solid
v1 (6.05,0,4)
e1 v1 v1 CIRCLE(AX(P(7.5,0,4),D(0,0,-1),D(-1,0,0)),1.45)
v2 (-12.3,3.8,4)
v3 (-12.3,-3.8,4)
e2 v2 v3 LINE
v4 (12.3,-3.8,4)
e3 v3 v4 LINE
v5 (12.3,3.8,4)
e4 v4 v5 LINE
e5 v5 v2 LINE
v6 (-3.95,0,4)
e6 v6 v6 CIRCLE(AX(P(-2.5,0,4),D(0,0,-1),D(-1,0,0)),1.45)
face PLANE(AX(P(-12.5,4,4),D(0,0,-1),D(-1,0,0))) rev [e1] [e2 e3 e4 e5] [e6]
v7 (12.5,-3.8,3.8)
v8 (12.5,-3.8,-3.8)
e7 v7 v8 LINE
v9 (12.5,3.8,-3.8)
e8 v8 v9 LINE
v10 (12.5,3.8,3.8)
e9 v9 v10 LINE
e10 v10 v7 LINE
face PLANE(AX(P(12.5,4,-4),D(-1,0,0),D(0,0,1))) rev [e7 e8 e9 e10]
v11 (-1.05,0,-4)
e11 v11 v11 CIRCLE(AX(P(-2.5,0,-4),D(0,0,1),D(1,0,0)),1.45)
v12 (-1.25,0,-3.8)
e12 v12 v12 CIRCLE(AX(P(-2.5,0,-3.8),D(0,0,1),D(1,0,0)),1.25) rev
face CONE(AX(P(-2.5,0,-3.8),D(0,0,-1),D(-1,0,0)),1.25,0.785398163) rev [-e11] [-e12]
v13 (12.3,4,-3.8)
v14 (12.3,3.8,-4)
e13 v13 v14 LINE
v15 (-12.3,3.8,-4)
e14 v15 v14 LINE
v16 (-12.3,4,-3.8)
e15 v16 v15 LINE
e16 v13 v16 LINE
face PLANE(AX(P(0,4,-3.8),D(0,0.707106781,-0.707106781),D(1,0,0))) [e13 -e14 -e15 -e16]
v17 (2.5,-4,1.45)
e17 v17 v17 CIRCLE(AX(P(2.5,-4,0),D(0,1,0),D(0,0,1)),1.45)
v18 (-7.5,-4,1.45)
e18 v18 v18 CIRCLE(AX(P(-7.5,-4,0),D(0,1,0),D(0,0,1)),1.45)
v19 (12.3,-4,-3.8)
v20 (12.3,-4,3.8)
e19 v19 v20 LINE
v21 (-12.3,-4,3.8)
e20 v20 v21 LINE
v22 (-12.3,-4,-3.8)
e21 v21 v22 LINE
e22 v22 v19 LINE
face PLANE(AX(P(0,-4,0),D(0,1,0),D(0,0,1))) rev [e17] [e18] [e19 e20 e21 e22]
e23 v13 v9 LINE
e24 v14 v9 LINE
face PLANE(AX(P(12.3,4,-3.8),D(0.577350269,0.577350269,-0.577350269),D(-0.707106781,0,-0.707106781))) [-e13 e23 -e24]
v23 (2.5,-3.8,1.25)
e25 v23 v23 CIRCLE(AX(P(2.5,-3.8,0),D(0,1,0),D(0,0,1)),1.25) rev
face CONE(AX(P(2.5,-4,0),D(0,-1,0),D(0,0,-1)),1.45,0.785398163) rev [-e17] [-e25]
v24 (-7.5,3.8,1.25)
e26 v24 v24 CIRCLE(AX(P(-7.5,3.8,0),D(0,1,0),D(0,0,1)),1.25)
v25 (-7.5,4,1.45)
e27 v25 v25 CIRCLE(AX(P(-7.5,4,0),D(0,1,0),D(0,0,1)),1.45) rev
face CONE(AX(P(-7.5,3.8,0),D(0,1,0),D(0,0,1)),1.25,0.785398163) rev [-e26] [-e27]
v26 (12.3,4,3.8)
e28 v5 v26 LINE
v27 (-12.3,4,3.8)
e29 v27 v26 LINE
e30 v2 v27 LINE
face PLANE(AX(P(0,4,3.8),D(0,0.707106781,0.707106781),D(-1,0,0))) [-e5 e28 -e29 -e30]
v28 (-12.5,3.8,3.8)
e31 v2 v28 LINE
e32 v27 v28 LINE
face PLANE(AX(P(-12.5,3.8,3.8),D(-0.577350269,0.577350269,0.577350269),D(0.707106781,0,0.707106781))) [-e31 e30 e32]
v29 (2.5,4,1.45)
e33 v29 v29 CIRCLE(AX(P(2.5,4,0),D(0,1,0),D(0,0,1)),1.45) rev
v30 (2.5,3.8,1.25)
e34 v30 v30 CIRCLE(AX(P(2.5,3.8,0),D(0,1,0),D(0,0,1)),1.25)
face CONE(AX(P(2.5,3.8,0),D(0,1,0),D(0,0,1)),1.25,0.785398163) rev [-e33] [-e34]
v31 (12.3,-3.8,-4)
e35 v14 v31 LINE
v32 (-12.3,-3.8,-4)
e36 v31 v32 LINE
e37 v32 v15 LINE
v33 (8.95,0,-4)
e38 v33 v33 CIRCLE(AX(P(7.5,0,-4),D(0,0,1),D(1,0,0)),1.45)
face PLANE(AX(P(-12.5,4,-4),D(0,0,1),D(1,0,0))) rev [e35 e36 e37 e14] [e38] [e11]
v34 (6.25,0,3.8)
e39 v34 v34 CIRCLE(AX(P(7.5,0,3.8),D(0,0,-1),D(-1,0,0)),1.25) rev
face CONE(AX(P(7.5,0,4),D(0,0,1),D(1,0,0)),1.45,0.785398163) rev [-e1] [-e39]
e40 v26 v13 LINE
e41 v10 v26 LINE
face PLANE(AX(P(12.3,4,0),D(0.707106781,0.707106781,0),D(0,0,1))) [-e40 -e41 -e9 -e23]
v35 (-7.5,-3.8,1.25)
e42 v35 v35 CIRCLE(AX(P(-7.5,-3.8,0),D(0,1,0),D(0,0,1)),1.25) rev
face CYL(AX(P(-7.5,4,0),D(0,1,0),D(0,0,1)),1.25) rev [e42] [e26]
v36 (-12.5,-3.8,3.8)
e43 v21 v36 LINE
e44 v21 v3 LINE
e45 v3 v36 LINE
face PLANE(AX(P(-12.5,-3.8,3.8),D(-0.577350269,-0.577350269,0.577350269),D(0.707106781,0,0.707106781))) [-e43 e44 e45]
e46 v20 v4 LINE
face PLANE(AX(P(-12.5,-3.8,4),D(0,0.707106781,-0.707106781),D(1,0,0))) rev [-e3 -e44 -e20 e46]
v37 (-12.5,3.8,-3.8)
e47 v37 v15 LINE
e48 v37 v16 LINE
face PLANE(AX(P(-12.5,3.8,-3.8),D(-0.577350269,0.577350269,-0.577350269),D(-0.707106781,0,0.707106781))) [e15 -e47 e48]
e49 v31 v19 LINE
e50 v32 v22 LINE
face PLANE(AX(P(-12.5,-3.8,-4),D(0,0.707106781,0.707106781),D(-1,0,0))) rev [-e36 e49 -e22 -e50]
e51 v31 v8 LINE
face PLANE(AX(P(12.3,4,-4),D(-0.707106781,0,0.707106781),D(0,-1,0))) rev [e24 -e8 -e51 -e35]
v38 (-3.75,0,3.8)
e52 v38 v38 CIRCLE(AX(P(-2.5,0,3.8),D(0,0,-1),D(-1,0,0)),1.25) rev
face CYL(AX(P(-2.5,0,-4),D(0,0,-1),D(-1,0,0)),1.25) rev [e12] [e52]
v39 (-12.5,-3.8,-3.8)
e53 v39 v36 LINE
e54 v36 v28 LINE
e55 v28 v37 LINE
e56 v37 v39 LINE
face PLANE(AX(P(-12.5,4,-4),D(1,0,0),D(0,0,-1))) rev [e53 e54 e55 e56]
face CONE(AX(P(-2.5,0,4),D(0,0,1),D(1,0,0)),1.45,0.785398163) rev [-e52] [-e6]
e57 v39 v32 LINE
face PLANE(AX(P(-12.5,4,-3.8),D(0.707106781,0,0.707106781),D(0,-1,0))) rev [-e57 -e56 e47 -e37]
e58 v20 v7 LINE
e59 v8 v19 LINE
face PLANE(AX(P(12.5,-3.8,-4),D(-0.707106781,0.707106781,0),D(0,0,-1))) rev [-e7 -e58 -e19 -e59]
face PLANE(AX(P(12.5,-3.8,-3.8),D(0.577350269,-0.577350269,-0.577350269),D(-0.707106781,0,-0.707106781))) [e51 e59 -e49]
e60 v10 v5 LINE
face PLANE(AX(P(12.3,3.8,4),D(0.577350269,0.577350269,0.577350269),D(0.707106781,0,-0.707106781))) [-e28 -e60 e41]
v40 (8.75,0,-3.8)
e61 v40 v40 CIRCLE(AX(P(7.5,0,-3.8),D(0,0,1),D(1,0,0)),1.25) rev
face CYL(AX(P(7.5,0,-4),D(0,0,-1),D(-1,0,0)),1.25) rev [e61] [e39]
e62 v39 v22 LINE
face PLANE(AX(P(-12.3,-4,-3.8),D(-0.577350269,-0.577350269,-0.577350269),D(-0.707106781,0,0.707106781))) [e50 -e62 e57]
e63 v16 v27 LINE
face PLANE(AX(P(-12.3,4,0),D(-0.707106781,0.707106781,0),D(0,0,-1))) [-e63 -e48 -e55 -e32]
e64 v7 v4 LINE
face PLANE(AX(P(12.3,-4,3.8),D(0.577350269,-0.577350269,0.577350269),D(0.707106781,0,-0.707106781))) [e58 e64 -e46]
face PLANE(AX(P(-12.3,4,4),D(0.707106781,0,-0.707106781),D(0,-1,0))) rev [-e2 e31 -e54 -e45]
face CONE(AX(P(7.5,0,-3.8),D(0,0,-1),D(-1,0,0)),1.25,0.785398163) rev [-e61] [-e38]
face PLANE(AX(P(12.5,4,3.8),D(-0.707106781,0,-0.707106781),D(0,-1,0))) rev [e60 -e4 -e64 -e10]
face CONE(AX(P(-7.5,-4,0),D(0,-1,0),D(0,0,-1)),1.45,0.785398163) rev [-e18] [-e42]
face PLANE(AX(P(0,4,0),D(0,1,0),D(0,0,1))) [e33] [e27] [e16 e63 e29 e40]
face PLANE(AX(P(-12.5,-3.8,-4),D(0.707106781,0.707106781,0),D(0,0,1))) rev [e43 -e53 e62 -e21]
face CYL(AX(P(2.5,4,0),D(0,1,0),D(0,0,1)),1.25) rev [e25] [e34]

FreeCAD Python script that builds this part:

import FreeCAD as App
import Part
import Sketcher
Q = App.Units.Quantity


def add_polygon(sketch, points):
    """Adds a closed chain of lines whose ends are joined by coincident constraints."""
    first, n = sketch.GeometryCount, len(points)
    for a, b in zip(points, points[1:] + points[:1]):
        sketch.addGeometry(Part.LineSegment(App.Vector(*a, 0), App.Vector(*b, 0)), False)
    for i in range(n):
        sketch.addConstraint(Sketcher.Constraint("Coincident", first + i, 2, first + (i + 1) % n, 1))

doc = App.newDocument("Part")
params = doc.addObject("Spreadsheet::Sheet", "Params")
for row, (alias, value) in enumerate([
    ("sketch1_width", "25 mm"),
    ("sketch1_height", "8 mm"),
    ("pad1_length", "8 mm"),
    ("sketch2_diameter", "2.5 mm"),
    ("hole_diameter", "2.5 mm"),
    ("sketch3_diameter", "2.5 mm"),
    ("hole2_diameter", "2.5 mm"),
    ("chamfer_size", "0.2 mm"),
], start=1):
    params.set(f"A{row}", alias)
    params.set(f"B{row}", "=" + value)
    params.setAlias(f"B{row}", alias)

body = doc.addObject("PartDesign::Body", "Body")

sketch1 = body.newObject("Sketcher::SketchObject", "Sketch")
sketch1.AttachmentSupport = (doc.getObject("XZ_Plane"), [""])
sketch1.MapMode = "FlatFace"
add_polygon(sketch1, [(-12, -4), (-12, 4), (12, 4), (12, -4)])
sketch1.addConstraint(Sketcher.Constraint("Vertical", 0))
sketch1.addConstraint(Sketcher.Constraint("Horizontal", 1))
sketch1.addConstraint(Sketcher.Constraint("Vertical", 2))
sketch1.addConstraint(Sketcher.Constraint("Horizontal", 3))
sketch1.addConstraint(Sketcher.Constraint("Symmetric", 0, 2, 2, 2, -1, 1))
sketch1.addConstraint(Sketcher.Constraint("DistanceX", 1, 1, 1, 2, Q("25 mm")))
sketch1.addConstraint(Sketcher.Constraint("DistanceY", 0, 1, 0, 2, Q("8 mm")))
sketch1.setExpression("Constraints[9]", "Params.sketch1_width")
sketch1.setExpression("Constraints[10]", "Params.sketch1_height")
pad1 = body.newObject("PartDesign::Pad", "Pad")
pad1.Profile = sketch1
pad1.setExpression("Length", "Params.pad1_length")
pad1.Midplane = True

sketch2 = body.newObject("Sketcher::SketchObject", "Sketch001")
sketch2.AttachmentSupport = (doc.getObject("XZ_Plane"), [""])
sketch2.MapMode = "FlatFace"
sketch2.AttachmentOffset = App.Placement(App.Vector(0, 0, -4), App.Rotation())
sketch2.addGeometry(Part.Circle(App.Vector(-7.5, 0, 0), App.Vector(0, 0, 1), 1.2), False)
sketch2.addGeometry(Part.Circle(App.Vector(2.5, 0, 0), App.Vector(0, 0, 1), 1.2), False)
sketch2.addConstraint(Sketcher.Constraint("Equal", 0, 1))
sketch2.addConstraint(Sketcher.Constraint("PointOnObject", 0, 3, -1))
sketch2.addConstraint(Sketcher.Constraint("PointOnObject", 1, 3, -1))
sketch2.addConstraint(Sketcher.Constraint("Diameter", 0, Q("2.5 mm")))
sketch2.addConstraint(Sketcher.Constraint("DistanceX", 0, 3, 1, 3, Q("10 mm")))
sketch2.addConstraint(Sketcher.Constraint("DistanceX", 0, 3, -1, 1, Q("7.5 mm")))
sketch2.setExpression("Constraints[3]", "Params.sketch2_diameter")
doc.recompute()
hole = body.newObject("PartDesign::Hole", "Hole")
hole.Profile = sketch2
hole.ThreadType = "None"
hole.setExpression("Diameter", "Params.hole_diameter")
hole.DepthType = "ThroughAll"
hole.Reversed = True

sketch3 = body.newObject("Sketcher::SketchObject", "Sketch002")
sketch3.AttachmentSupport = (doc.getObject("XY_Plane"), [""])
sketch3.MapMode = "FlatFace"
sketch3.AttachmentOffset = App.Placement(App.Vector(0, 0, -4), App.Rotation())
sketch3.addGeometry(Part.Circle(App.Vector(7.5, 0, 0), App.Vector(0, 0, 1), 1.2), False)
sketch3.addGeometry(Part.Circle(App.Vector(-2.5, 0, 0), App.Vector(0, 0, 1), 1.2), False)
sketch3.addConstraint(Sketcher.Constraint("Equal", 0, 1))
sketch3.addConstraint(Sketcher.Constraint("PointOnObject", 0, 3, -1))
sketch3.addConstraint(Sketcher.Constraint("PointOnObject", 1, 3, -1))
sketch3.addConstraint(Sketcher.Constraint("Diameter", 0, Q("2.5 mm")))
sketch3.addConstraint(Sketcher.Constraint("DistanceX", 1, 3, 0, 3, Q("10 mm")))
sketch3.addConstraint(Sketcher.Constraint("DistanceX", -1, 1, 0, 3, Q("7.5 mm")))
sketch3.setExpression("Constraints[3]", "Params.sketch3_diameter")
doc.recompute()
hole2 = body.newObject("PartDesign::Hole", "Hole001")
hole2.Profile = sketch3
hole2.ThreadType = "None"
hole2.setExpression("Diameter", "Params.hole2_diameter")
hole2.DepthType = "ThroughAll"
hole2.Reversed = True
doc.recompute()

chamfer = body.newObject("PartDesign::Chamfer", "Chamfer")
chamfer.Base = (hole2, ["Edge1"])
chamfer.UseAllEdges = True
chamfer.setExpression("Size", "Params.chamfer_size")

doc.recompute()
